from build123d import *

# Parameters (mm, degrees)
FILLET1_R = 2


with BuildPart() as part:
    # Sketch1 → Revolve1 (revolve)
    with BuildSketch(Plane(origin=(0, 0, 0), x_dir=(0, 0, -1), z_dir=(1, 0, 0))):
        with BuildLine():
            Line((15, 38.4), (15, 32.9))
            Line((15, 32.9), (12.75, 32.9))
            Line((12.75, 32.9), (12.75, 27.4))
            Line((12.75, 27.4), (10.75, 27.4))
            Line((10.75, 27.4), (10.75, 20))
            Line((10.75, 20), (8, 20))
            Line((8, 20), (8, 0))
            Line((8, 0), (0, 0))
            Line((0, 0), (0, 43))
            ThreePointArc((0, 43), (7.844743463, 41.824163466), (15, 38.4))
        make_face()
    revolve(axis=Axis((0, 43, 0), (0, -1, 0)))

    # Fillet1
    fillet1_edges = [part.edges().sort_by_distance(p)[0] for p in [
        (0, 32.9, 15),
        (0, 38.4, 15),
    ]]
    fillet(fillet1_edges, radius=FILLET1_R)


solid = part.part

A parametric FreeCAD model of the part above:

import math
import FreeCAD as App
import Part
import Sketcher
Q = App.Units.Quantity


def edges_at(feature, points):
    """Names of the edges that pass closest to the given points."""
    edges = feature.Shape.Edges
    near = lambda p: min(range(len(edges)), key=lambda i: edges[i].distToShape(Part.Vertex(*p))[0])
    return sorted({f"Edge{near(p) + 1}" for p in points})

doc = App.newDocument("Part")
params = doc.addObject("Spreadsheet::Sheet", "Params")
for row, (alias, value) in enumerate([
    ("sketch1_width", "43 mm"),
    ("sketch1_width2", "20 mm"),
    ("sketch1_height", "8 mm"),
    ("sketch1_height2", "2 mm"),
    ("sketch1_width3", "5.5 mm"),
    ("revolution_angle", "360 deg"),
    ("fillet_radius", "2 mm"),
], start=1):
    params.set(f"A{row}", alias)
    params.set(f"B{row}", "=" + value)
    params.setAlias(f"B{row}", alias)

body = doc.addObject("PartDesign::Body", "Body")

sketch1 = body.newObject("Sketcher::SketchObject", "Sketch")
sketch1.AttachmentSupport = (doc.getObject("YZ_Plane"), [""])
sketch1.MapMode = "FlatFace"
sketch1.addGeometry(Part.LineSegment(App.Vector(32.9, -15, 0), App.Vector(38.4, -15, 0)), False)
sketch1.addGeometry(Part.ArcOfCircle(Part.Circle(App.Vector(16.2, 0, 0), App.Vector(0, 0, 1), 26.8), math.radians(-34), math.radians(0)), False)
sketch1.addGeometry(Part.LineSegment(App.Vector(43, 0, 0), App.Vector(0, 0, 0)), False)
sketch1.addGeometry(Part.LineSegment(App.Vector(0, 0, 0), App.Vector(0, -8, 0)), False)
sketch1.addGeometry(Part.LineSegment(App.Vector(0, -8, 0), App.Vector(20, -8, 0)), False)
sketch1.addGeometry(Part.LineSegment(App.Vector(20, -8, 0), App.Vector(20, -10.8, 0)), False)
sketch1.addGeometry(Part.LineSegment(App.Vector(20, -10.8, 0), App.Vector(27.4, -10.8, 0)), False)
sketch1.addGeometry(Part.LineSegment(App.Vector(27.4, -10.8, 0), App.Vector(27.4, -12.8, 0)), False)
sketch1.addGeometry(Part.LineSegment(App.Vector(27.4, -12.8, 0), App.Vector(32.9, -12.8, 0)), False)
sketch1.addGeometry(Part.LineSegment(App.Vector(32.9, -12.8, 0), App.Vector(32.9, -15, 0)), False)
sketch1.addConstraint(Sketcher.Constraint("Coincident", 0, 2, 1, 1))
sketch1.addConstraint(Sketcher.Constraint("Coincident", 1, 2, 2, 1))
sketch1.addConstraint(Sketcher.Constraint("Coincident", 2, 2, 3, 1))
sketch1.addConstraint(Sketcher.Constraint("Coincident", 3, 2, 4, 1))
sketch1.addConstraint(Sketcher.Constraint("Coincident", 4, 2, 5, 1))
sketch1.addConstraint(Sketcher.Constraint("Coincident", 5, 2, 6, 1))
sketch1.addConstraint(Sketcher.Constraint("Coincident", 6, 2, 7, 1))
sketch1.addConstraint(Sketcher.Constraint("Coincident", 7, 2, 8, 1))
sketch1.addConstraint(Sketcher.Constraint("Coincident", 8, 2, 9, 1))
sketch1.addConstraint(Sketcher.Constraint("Coincident", 9, 2, 0, 1))
sketch1.addConstraint(Sketcher.Constraint("Horizontal", 0))
sketch1.addConstraint(Sketcher.Constraint("Horizontal", 2))
sketch1.addConstraint(Sketcher.Constraint("Vertical", 3))
sketch1.addConstraint(Sketcher.Constraint("Horizontal", 4))
sketch1.addConstraint(Sketcher.Constraint("Vertical", 5))
sketch1.addConstraint(Sketcher.Constraint("Horizontal", 6))
sketch1.addConstraint(Sketcher.Constraint("Vertical", 7))
sketch1.addConstraint(Sketcher.Constraint("Horizontal", 8))
sketch1.addConstraint(Sketcher.Constraint("Vertical", 9))
sketch1.addConstraint(Sketcher.Constraint("Coincident", 2, 2, -1, 1))
sketch1.addConstraint(Sketcher.Constraint("PointOnObject", 1, 3, -1))
sketch1.addConstraint(Sketcher.Constraint("Equal", 0, 8))
sketch1.addConstraint(Sketcher.Constraint("DistanceX", 2, 2, 2, 1, Q("43 mm")))
sketch1.addConstraint(Sketcher.Constraint("DistanceX", 4, 1, 4, 2, Q("20 mm")))
sketch1.addConstraint(Sketcher.Constraint("DistanceY", 3, 2, 3, 1, Q("8 mm")))
sketch1.addConstraint(Sketcher.Constraint("DistanceY", 7, 2, 7, 1, Q("2 mm")))
sketch1.addConstraint(Sketcher.Constraint("DistanceX", 0, 1, 0, 2, Q("5.5 mm")))
sketch1.addConstraint(Sketcher.Constraint("DistanceX", 6, 1, 6, 2, Q("7.4 mm")))
sketch1.addConstraint(Sketcher.Constraint("DistanceY", 0, 2, -1, 1, Q("15 mm")))
sketch1.addConstraint(Sketcher.Constraint("DistanceY", 5, 2, 5, 1, Q("2.75 mm")))
sketch1.setExpression("Constraints[22]", "Params.sketch1_width")
sketch1.setExpression("Constraints[23]", "Params.sketch1_width2")
sketch1.setExpression("Constraints[24]", "Params.sketch1_height")
sketch1.setExpression("Constraints[25]", "Params.sketch1_height2")
sketch1.setExpression("Constraints[26]", "Params.sketch1_width3")
revolution = body.newObject("PartDesign::Revolution", "Revolution")
revolution.Profile = sketch1
revolution.ReferenceAxis = (sketch1, ["H_Axis"])
revolution.setExpression("Angle", "Params.revolution_angle")
doc.recompute()

fillet = body.newObject("PartDesign::Fillet", "Fillet")
fillet.Base = (revolution, edges_at(revolution, [(0, 32.9, 15), (0, 38.4, 15)]))
fillet.setExpression("Radius", "Params.fillet_radius")

doc.recompute()
